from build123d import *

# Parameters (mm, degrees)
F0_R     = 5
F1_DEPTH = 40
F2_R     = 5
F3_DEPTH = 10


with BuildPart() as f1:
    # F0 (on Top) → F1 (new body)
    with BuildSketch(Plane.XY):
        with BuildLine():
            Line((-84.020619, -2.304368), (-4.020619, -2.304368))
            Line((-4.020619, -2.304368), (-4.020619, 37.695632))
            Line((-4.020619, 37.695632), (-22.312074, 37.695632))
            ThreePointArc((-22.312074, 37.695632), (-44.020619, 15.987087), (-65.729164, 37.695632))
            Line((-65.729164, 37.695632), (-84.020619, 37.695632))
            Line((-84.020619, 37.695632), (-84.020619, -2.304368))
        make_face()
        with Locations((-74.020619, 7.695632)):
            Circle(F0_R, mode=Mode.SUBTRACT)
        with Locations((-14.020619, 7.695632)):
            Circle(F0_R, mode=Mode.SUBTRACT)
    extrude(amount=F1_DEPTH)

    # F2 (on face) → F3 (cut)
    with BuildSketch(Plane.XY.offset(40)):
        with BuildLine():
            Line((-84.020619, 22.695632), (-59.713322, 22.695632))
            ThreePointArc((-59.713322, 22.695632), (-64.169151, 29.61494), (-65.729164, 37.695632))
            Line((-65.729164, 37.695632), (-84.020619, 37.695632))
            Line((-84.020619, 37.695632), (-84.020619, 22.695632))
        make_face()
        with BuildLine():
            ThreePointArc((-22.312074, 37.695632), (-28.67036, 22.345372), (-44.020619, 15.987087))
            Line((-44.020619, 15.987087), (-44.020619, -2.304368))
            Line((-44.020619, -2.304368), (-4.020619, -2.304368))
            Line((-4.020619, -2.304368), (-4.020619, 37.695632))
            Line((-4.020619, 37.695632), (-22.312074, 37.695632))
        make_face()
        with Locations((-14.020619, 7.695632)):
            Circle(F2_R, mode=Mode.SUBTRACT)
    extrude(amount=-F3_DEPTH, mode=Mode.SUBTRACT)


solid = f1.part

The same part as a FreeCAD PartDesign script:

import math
import FreeCAD as App
import Part
import Sketcher

V = App.Vector

doc = App.newDocument("Part")
body = doc.addObject("PartDesign::Body", "Body")

# Sketch on XY plane
sketch1 = body.newObject("Sketcher::SketchObject", "Sketch")
sketch1.AttachmentSupport = (doc.getObject("XY_Plane"), [""])
sketch1.MapMode = "FlatFace"
sketch1.addGeometry([
    Part.LineSegment(V(-84, -2, 0), V(-4, -2, 0)),  # 0
    Part.LineSegment(V(-4, -2, 0), V(-4, 38, 0)),  # 1
    Part.LineSegment(V(-4, 38, 0), V(-22, 38, 0)),  # 2
    Part.ArcOfCircle(Part.Circle(V(-44, 38, 0), V(0, 0, 1), 22), math.radians(180), math.radians(360)),  # 3
    Part.LineSegment(V(-66, 38, 0), V(-84, 38, 0)),  # 4
    Part.LineSegment(V(-84, 38, 0), V(-84, -2, 0)),  # 5
    Part.Circle(V(-74, 8, 0), V(0, 0, 1), 5),  # 6
    Part.Circle(V(-14, 8, 0), V(0, 0, 1), 5),  # 7
], False)
sketch1.addConstraint([
    Sketcher.Constraint("Coincident", 0, 2, 1, 1),
    Sketcher.Constraint("Coincident", 1, 2, 2, 1),
    Sketcher.Constraint("Coincident", 2, 2, 3, 2),
    Sketcher.Constraint("Coincident", 3, 1, 4, 1),
    Sketcher.Constraint("Coincident", 4, 2, 5, 1),
    Sketcher.Constraint("Coincident", 5, 2, 0, 1),
    Sketcher.Constraint("Horizontal", 0),
    Sketcher.Constraint("Vertical", 1),
    Sketcher.Constraint("Horizontal", 2),
    Sketcher.Constraint("Horizontal", 4),
    Sketcher.Constraint("Vertical", 5),
    Sketcher.Constraint("Equal", 6, 7),
    Sketcher.Constraint("Horizontal", 6, 3, 7, 3),
    Sketcher.Constraint("Horizontal", 3, 3, 1, 2),
    Sketcher.Constraint("Horizontal", 2, 2, 3, 1),
    Sketcher.Constraint("Equal", 2, 4),
    Sketcher.Constraint("Diameter", 6, 10.0),
    Sketcher.Constraint("DistanceX", 0, 1, 0, 2, 80.0),
    Sketcher.Constraint("DistanceY", 1, 1, 1, 2, 40.0),
    Sketcher.Constraint("DistanceX", 6, 3, 3, 3, 30.0),
    Sketcher.Constraint("DistanceY", 6, 3, 3, 3, 30.0),
    Sketcher.Constraint("DistanceX", 3, 3, 7, 3, 30.0),
    Sketcher.Constraint("Radius", 3, 21.708545),
    Sketcher.Constraint("DistanceX", 3, 3, -1, 1, 44.020619),
    Sketcher.Constraint("DistanceY", -1, 1, 6, 3, 7.695632),
])
pad1 = body.newObject("PartDesign::Pad", "Pad")
pad1.Profile = sketch1
pad1.Length = 40

# Sketch on XY plane
sketch2 = body.newObject("Sketcher::SketchObject", "Sketch001")
sketch2.AttachmentSupport = (doc.getObject("XY_Plane"), [""])
sketch2.MapMode = "FlatFace"
sketch2.AttachmentOffset = App.Placement(V(0, 0, 40), App.Rotation())
sketch2.addGeometry([
    Part.LineSegment(V(-84, 23, 0), V(-60, 23, 0)),  # 0
    Part.ArcOfCircle(Part.Circle(V(-44, 38, 0), V(0, 0, 1), 22), math.radians(-180), math.radians(-136)),  # 1
    Part.LineSegment(V(-66, 38, 0), V(-84, 38, 0)),  # 2
    Part.LineSegment(V(-84, 38, 0), V(-84, 23, 0)),  # 3
    Part.ArcOfCircle(Part.Circle(V(-44, 38, 0), V(0, 0, 1), 22), math.radians(-90), math.radians(0)),  # 4
    Part.LineSegment(V(-44, 16, 0), V(-44, -2, 0)),  # 5
    Part.LineSegment(V(-44, -2, 0), V(-4, -2, 0)),  # 6
    Part.LineSegment(V(-4, -2, 0), V(-4, 38, 0)),  # 7
    Part.LineSegment(V(-4, 38, 0), V(-22, 38, 0)),  # 8
    Part.Circle(V(-14, 8, 0), V(0, 0, 1), 5),  # 9
], False)
sketch2.addConstraint([
    Sketcher.Constraint("Coincident", 0, 2, 1, 2),
    Sketcher.Constraint("Coincident", 1, 1, 2, 1),
    Sketcher.Constraint("Coincident", 2, 2, 3, 1),
    Sketcher.Constraint("Coincident", 3, 2, 0, 1),
    Sketcher.Constraint("Coincident", 4, 1, 5, 1),
    Sketcher.Constraint("Coincident", 5, 2, 6, 1),
    Sketcher.Constraint("Coincident", 6, 2, 7, 1),
    Sketcher.Constraint("Coincident", 7, 2, 8, 1),
    Sketcher.Constraint("Coincident", 8, 2, 4, 2),
    Sketcher.Constraint("Horizontal", 0),
    Sketcher.Constraint("Horizontal", 2),
    Sketcher.Constraint("Vertical", 3),
    Sketcher.Constraint("Vertical", 5),
    Sketcher.Constraint("Horizontal", 6),
    Sketcher.Constraint("Vertical", 7),
    Sketcher.Constraint("Horizontal", 8),
    Sketcher.Constraint("Coincident", 4, 3, 1, 3),
    Sketcher.Constraint("Equal", 1, 4),
    Sketcher.Constraint("Horizontal", 4, 3, 1, 1),
    Sketcher.Constraint("Horizontal", 2, 2, 7, 2),
    Sketcher.Constraint("Vertical", 1, 3, 4, 1),
    Sketcher.Constraint("Equal", 2, 8),
    Sketcher.Constraint("Equal", 8, 5),
    Sketcher.Constraint("Diameter", 9, 10.0),
    Sketcher.Constraint("DistanceX", 6, 1, 6, 2, 40.0),
    Sketcher.Constraint("DistanceY", 3, 2, 3, 1, 15.0),
    Sketcher.Constraint("DistanceX", 4, 3, 9, 3, 30.0),
    Sketcher.Constraint("DistanceY", 9, 3, 4, 3, 30.0),
    Sketcher.Constraint("Radius", 1, 21.708546),
    Sketcher.Constraint("DistanceX", 1, 3, -1, 1, 44.020618),
    Sketcher.Constraint("DistanceY", -1, 1, 4, 3, 37.695632),
])
pocket1 = body.newObject("PartDesign::Pocket", "Pocket")
pocket1.Profile = sketch2
pocket1.Length = 10

doc.recompute()
